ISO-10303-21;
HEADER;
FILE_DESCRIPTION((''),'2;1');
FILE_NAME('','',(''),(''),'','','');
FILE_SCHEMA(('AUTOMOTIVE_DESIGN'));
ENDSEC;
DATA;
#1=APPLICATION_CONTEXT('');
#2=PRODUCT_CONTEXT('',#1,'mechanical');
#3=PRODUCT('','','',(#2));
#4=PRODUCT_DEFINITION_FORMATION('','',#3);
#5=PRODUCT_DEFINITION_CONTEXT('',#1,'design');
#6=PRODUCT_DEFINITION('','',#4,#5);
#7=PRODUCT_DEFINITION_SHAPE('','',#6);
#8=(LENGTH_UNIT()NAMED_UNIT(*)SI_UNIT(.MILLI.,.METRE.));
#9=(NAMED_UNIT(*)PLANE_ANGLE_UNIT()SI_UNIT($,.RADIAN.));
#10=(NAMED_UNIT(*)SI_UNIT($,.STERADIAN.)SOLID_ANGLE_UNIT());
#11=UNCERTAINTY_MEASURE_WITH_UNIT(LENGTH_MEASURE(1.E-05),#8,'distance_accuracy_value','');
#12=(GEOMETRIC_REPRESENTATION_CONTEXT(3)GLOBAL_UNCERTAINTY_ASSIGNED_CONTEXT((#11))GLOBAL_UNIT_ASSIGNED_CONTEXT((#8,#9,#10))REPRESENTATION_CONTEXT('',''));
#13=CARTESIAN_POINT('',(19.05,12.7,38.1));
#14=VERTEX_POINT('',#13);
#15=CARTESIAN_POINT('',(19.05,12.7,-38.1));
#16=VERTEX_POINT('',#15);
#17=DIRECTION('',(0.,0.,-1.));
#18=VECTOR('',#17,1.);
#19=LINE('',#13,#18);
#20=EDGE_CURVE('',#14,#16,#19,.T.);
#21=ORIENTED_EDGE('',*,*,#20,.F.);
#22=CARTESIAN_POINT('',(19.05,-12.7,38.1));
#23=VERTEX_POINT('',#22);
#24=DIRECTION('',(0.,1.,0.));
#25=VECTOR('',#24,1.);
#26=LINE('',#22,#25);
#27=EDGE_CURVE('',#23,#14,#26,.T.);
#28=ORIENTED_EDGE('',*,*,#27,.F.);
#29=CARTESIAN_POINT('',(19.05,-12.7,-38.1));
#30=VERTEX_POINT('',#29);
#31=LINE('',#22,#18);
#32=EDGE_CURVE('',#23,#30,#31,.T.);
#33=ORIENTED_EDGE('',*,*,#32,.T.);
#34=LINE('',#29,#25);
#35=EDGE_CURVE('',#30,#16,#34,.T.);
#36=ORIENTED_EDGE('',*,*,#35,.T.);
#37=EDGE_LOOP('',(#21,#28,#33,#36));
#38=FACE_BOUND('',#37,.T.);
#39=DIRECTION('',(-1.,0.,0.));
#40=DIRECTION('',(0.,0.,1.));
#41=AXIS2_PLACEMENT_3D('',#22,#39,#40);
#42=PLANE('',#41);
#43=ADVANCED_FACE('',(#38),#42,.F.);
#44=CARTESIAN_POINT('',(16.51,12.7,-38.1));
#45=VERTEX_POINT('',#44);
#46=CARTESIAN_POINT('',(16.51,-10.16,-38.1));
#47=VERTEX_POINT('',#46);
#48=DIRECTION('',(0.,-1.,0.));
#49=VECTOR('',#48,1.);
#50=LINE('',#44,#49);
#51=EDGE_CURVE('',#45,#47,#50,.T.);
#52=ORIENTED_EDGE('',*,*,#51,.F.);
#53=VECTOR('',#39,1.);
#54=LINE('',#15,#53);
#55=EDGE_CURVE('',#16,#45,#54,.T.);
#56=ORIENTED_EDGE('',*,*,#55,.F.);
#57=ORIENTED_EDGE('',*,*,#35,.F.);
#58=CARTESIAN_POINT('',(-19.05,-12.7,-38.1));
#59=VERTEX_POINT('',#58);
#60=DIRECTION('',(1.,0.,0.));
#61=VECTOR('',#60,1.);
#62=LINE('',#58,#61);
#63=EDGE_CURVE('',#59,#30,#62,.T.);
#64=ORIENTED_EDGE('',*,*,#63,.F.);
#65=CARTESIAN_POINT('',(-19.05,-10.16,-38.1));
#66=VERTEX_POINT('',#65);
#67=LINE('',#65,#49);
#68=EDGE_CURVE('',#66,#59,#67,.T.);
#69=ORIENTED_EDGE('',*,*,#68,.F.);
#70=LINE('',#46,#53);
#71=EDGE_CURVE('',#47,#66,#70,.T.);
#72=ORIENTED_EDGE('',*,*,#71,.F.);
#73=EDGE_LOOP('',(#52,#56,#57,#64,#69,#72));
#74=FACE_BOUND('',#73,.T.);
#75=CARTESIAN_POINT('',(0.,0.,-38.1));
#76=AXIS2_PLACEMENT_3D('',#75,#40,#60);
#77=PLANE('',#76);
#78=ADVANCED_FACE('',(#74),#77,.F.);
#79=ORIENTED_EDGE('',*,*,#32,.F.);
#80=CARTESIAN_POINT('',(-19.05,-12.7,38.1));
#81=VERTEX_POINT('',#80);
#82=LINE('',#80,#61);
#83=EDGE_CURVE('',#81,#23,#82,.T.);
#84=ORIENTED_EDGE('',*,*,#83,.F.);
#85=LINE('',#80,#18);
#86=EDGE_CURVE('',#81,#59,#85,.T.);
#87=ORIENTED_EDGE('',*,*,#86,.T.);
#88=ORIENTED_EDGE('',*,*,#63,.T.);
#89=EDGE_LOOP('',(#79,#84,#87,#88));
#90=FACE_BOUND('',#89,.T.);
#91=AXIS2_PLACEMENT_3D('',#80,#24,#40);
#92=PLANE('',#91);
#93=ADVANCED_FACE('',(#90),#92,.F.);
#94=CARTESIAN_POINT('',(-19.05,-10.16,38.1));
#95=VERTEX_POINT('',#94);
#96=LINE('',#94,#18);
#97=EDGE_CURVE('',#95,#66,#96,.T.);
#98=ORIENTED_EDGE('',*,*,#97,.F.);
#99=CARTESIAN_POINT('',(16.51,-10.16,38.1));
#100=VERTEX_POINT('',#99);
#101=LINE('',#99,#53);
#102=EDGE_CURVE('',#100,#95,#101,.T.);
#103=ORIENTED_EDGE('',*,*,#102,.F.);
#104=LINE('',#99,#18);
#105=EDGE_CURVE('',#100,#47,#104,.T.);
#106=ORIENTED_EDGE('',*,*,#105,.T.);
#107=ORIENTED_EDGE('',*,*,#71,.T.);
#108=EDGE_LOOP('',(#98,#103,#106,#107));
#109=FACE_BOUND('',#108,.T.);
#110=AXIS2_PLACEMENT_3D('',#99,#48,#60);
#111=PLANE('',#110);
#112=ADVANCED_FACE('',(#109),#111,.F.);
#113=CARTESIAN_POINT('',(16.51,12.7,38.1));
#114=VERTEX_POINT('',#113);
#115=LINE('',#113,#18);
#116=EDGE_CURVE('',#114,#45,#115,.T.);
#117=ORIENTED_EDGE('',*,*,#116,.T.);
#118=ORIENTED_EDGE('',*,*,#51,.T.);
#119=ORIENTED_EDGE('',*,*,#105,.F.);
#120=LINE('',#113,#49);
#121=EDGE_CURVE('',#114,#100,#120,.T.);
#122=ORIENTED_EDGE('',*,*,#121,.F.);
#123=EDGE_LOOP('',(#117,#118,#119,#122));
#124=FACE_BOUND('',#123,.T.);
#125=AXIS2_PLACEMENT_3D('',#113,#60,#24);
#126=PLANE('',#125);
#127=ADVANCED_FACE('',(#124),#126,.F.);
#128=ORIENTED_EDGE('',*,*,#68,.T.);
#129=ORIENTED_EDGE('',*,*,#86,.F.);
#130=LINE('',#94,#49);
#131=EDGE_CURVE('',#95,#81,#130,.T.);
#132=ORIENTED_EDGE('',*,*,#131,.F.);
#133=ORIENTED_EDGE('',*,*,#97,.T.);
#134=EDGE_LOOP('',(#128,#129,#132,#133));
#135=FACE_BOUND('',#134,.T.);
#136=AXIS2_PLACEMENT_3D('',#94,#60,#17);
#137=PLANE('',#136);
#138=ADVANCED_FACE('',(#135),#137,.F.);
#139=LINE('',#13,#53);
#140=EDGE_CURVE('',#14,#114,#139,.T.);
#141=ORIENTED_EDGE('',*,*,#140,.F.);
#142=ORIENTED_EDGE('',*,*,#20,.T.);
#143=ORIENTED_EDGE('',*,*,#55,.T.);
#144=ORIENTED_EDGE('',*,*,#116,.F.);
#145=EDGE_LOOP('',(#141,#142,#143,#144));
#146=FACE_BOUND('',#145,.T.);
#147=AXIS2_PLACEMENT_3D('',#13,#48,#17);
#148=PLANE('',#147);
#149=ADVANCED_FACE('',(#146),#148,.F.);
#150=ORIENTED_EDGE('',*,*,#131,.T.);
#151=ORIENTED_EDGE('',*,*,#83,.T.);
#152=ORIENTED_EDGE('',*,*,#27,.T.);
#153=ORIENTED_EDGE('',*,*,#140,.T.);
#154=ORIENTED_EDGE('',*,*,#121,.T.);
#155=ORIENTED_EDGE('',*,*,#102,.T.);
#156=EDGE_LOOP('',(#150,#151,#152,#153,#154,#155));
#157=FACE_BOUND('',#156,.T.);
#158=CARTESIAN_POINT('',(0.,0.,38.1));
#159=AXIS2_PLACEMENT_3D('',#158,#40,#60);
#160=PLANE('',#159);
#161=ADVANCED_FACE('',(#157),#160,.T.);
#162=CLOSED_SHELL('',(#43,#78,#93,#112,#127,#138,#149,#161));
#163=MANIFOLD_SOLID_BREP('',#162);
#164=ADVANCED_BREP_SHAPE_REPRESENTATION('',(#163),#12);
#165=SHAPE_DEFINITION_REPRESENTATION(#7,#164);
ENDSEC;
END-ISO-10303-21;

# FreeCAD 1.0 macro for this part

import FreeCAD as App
import Part
import Sketcher

V = App.Vector
Q = App.Units.Quantity

doc = App.newDocument("Part")
body = doc.addObject("PartDesign::Body", "Body")

sketch1 = body.newObject("Sketcher::SketchObject", "Sketch")
sketch1.AttachmentSupport = (doc.getObject("XY_Plane"), [""])
sketch1.MapMode = "FlatFace"
sketch1.addGeometry(Part.LineSegment(V(16.5, 12.7, 0), V(16.5, -10.2, 0)), False)
sketch1.addGeometry(Part.LineSegment(V(16.5, -10.2, 0), V(-19.1, -10.2, 0)), False)
sketch1.addGeometry(Part.LineSegment(V(-19.1, -10.2, 0), V(-19.1, -12.7, 0)), False)
sketch1.addGeometry(Part.LineSegment(V(-19.1, -12.7, 0), V(19.1, -12.7, 0)), False)
sketch1.addGeometry(Part.LineSegment(V(19.1, -12.7, 0), V(19.1, 12.7, 0)), False)
sketch1.addGeometry(Part.LineSegment(V(19.1, 12.7, 0), V(16.5, 12.7, 0)), False)
sketch1.addConstraint(Sketcher.Constraint("Coincident", 0, 2, 1, 1))
sketch1.addConstraint(Sketcher.Constraint("Coincident", 1, 2, 2, 1))
sketch1.addConstraint(Sketcher.Constraint("Coincident", 2, 2, 3, 1))
sketch1.addConstraint(Sketcher.Constraint("Coincident", 3, 2, 4, 1))
sketch1.addConstraint(Sketcher.Constraint("Coincident", 4, 2, 5, 1))
sketch1.addConstraint(Sketcher.Constraint("Coincident", 5, 2, 0, 1))
sketch1.addConstraint(Sketcher.Constraint("Vertical", 0))
sketch1.addConstraint(Sketcher.Constraint("Horizontal", 1))
sketch1.addConstraint(Sketcher.Constraint("Vertical", 2))
sketch1.addConstraint(Sketcher.Constraint("Horizontal", 3))
sketch1.addConstraint(Sketcher.Constraint("Vertical", 4))
sketch1.addConstraint(Sketcher.Constraint("Horizontal", 5))
sketch1.addConstraint(Sketcher.Constraint("Symmetric", 2, 2, 4, 2, -1, 1))
sketch1.addConstraint(Sketcher.Constraint("Equal", 5, 2))
sketch1.addConstraint(Sketcher.Constraint("DistanceY", 4, 1, 4, 2, Q("1 in")))
sketch1.addConstraint(Sketcher.Constraint("DistanceX", 1, 2, 1, 1, Q("1.4 in")))
sketch1.addConstraint(Sketcher.Constraint("DistanceX", 3, 1, 3, 2, Q("1.5 in")))
pad1 = body.newObject("PartDesign::Pad", "Pad")
pad1.Profile = sketch1
pad1.Length = Q("3 in")
pad1.Midplane = True

doc.recompute()
